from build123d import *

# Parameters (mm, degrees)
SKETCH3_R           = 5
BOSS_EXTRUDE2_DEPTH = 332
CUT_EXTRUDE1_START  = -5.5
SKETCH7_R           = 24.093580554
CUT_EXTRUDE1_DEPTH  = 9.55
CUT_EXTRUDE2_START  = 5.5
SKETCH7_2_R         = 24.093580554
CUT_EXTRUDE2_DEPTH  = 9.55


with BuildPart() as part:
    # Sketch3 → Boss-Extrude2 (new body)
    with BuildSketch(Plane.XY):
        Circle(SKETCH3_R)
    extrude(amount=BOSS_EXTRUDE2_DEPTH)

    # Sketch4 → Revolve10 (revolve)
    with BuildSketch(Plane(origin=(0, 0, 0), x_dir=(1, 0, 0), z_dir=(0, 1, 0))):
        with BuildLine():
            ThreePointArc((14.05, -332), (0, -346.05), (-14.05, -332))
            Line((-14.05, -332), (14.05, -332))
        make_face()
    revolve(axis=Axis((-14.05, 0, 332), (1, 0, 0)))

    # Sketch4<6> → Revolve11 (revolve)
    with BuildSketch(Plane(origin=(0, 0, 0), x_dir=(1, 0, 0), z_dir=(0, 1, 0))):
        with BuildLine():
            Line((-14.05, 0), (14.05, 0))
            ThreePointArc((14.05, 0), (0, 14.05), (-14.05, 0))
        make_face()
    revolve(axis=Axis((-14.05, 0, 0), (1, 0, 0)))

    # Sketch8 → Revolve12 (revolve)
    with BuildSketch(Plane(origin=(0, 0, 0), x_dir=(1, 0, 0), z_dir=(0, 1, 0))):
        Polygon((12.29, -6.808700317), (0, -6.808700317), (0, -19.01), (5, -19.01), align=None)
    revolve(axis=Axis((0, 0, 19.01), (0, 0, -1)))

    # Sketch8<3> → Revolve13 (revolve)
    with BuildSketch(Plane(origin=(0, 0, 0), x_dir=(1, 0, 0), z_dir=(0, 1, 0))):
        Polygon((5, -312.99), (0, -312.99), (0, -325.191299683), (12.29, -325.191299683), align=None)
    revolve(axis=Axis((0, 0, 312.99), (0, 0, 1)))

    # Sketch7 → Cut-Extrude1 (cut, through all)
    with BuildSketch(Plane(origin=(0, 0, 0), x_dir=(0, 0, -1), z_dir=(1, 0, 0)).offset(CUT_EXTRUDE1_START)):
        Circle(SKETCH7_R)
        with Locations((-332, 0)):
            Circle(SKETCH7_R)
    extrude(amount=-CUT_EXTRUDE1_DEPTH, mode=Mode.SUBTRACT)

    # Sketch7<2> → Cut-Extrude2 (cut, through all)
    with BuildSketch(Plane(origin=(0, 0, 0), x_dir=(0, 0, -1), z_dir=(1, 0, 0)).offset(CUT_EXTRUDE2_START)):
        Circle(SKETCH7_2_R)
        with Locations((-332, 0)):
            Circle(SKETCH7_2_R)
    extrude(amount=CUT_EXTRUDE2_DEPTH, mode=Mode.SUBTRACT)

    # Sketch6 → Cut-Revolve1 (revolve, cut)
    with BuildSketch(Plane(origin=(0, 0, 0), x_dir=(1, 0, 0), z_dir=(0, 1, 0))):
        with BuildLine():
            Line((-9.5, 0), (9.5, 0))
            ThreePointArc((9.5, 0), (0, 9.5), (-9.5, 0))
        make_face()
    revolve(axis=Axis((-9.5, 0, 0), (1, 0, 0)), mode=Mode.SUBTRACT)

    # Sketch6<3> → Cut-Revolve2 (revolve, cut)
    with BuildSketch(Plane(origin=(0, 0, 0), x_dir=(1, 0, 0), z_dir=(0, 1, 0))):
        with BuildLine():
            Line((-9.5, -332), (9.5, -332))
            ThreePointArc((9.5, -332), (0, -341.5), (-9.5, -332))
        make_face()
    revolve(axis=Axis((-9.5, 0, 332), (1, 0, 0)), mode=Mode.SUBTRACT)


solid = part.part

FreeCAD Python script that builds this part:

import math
import FreeCAD as App
import Part
import Sketcher

V = App.Vector


def add_polygon(sketch, points):
    """Adds a closed chain of lines whose ends are joined by coincident constraints."""
    first, n = sketch.GeometryCount, len(points)
    for a, b in zip(points, points[1:] + points[:1]):
        sketch.addGeometry(Part.LineSegment(App.Vector(*a, 0), App.Vector(*b, 0)), False)
    for i in range(n):
        sketch.addConstraint(Sketcher.Constraint("Coincident", first + i, 2, first + (i + 1) % n, 1))

doc = App.newDocument("Part")
body = doc.addObject("PartDesign::Body", "Body")

sketch1 = body.newObject("Sketcher::SketchObject", "Sketch")
sketch1.AttachmentSupport = (doc.getObject("XY_Plane"), [""])
sketch1.MapMode = "FlatFace"
sketch1.addGeometry(Part.Circle(V(0, 0, 0), V(0, 0, 1), 5), False)
sketch1.addConstraint([
    Sketcher.Constraint("Coincident", 0, 3, -1, 1),
    Sketcher.Constraint("Diameter", 0, 10.0),
])
pad1 = body.newObject("PartDesign::Pad", "Pad")
pad1.Profile = sketch1
pad1.Length = 332

sketch2 = body.newObject("Sketcher::SketchObject", "Sketch001")
sketch2.AttachmentSupport = (doc.getObject("XZ_Plane"), [""])
sketch2.MapMode = "FlatFace"
sketch2.addGeometry([
    Part.ArcOfCircle(Part.Circle(V(0, 332, 0), V(0, 0, 1), 14), math.radians(0), math.radians(180)),
    Part.LineSegment(V(14, 332, 0), V(-14, 332, 0)),
], False)
sketch2.addGeometry(Part.LineSegment(V(-14, 332, 0), V(14, 332, 0)), True)
sketch2.addConstraint([
    Sketcher.Constraint("Coincident", 0, 1, 1, 1),
    Sketcher.Constraint("Coincident", 1, 2, 0, 2),
    Sketcher.Constraint("Horizontal", 1),
    Sketcher.Constraint("Horizontal", 2),
    Sketcher.Constraint("Coincident", 2, 1, 1, 2),
    Sketcher.Constraint("PointOnObject", 0, 3, -2),
    Sketcher.Constraint("Equal", 1, 2),
    Sketcher.Constraint("Radius", 0, 14.05),
    Sketcher.Constraint("DistanceY", -1, 1, 0, 3, 332.0),
    Sketcher.Constraint("DistanceY", -1, 1, 0, 1, 332.0),
])
revolution = body.newObject("PartDesign::Revolution", "Revolution")
revolution.Profile = sketch2
revolution.ReferenceAxis = (sketch2, ["Axis0"])
revolution.Angle = 360

sketch3 = body.newObject("Sketcher::SketchObject", "Sketch002")
sketch3.AttachmentSupport = (doc.getObject("XZ_Plane"), [""])
sketch3.MapMode = "FlatFace"
sketch3.addGeometry([
    Part.LineSegment(V(-14, 0, 0), V(14, 0, 0)),
    Part.ArcOfCircle(Part.Circle(V(0, 0, 0), V(0, 0, 1), 14), math.radians(180), math.radians(360)),
], False)
sketch3.addConstraint([
    Sketcher.Constraint("Coincident", 0, 1, 1, 1),
    Sketcher.Constraint("Coincident", 1, 2, 0, 2),
    Sketcher.Constraint("Horizontal", 0),
    Sketcher.Constraint("Coincident", 1, 3, -1, 1),
    Sketcher.Constraint("PointOnObject", 0, 1, -1),
    Sketcher.Constraint("Radius", 1, 14.05),
])
revolution2 = body.newObject("PartDesign::Revolution", "Revolution001")
revolution2.Profile = sketch3
revolution2.ReferenceAxis = (sketch3, ["H_Axis"])
revolution2.Angle = 360

sketch4 = body.newObject("Sketcher::SketchObject", "Sketch003")
sketch4.AttachmentSupport = (doc.getObject("XZ_Plane"), [""])
sketch4.MapMode = "FlatFace"
add_polygon(sketch4, [(12, 7), (0, 7), (0, 19), (5, 19)])
sketch4.addConstraint([
    Sketcher.Constraint("Horizontal", 0),
    Sketcher.Constraint("Vertical", 1),
    Sketcher.Constraint("Horizontal", 2),
    Sketcher.Constraint("PointOnObject", 0, 2, -2),
    Sketcher.Constraint("DistanceX", 2, 1, 2, 2, 5.0),
    Sketcher.Constraint("DistanceX", 0, 2, 0, 1, 12.29),
    Sketcher.Constraint("DistanceY", -1, 1, 1, 2, 19.01),
    Sketcher.Constraint("DistanceY", 1, 1, 1, 2, 12.2013),
])
revolution3 = body.newObject("PartDesign::Revolution", "Revolution002")
revolution3.Profile = sketch4
revolution3.ReferenceAxis = (sketch4, ["V_Axis"])
revolution3.Angle = 360

sketch5 = body.newObject("Sketcher::SketchObject", "Sketch004")
sketch5.AttachmentSupport = (doc.getObject("XZ_Plane"), [""])
sketch5.MapMode = "FlatFace"
add_polygon(sketch5, [(5, 313), (0, 313), (0, 325), (12, 325)])
sketch5.addConstraint([
    Sketcher.Constraint("Horizontal", 0),
    Sketcher.Constraint("Vertical", 1),
    Sketcher.Constraint("Horizontal", 2),
    Sketcher.Constraint("PointOnObject", 0, 2, -2),
    Sketcher.Constraint("DistanceX", 0, 2, 0, 1, 5.0),
    Sketcher.Constraint("DistanceX", 2, 1, 2, 2, 12.29),
    Sketcher.Constraint("DistanceY", -1, 1, 0, 2, 312.99),
    Sketcher.Constraint("DistanceY", 1, 1, 1, 2, 12.2013),
])
revolution4 = body.newObject("PartDesign::Revolution", "Revolution003")
revolution4.Profile = sketch5
revolution4.ReferenceAxis = (sketch5, ["V_Axis"])
revolution4.Angle = 360

sketch6 = body.newObject("Sketcher::SketchObject", "Sketch005")
sketch6.AttachmentSupport = (doc.getObject("YZ_Plane"), [""])
sketch6.MapMode = "FlatFace"
sketch6.AttachmentOffset = App.Placement(V(0, 0, -5.5), App.Rotation())
sketch6.addGeometry([
    Part.Circle(V(0, 0, 0), V(0, 0, 1), 24),
    Part.Circle(V(0, 332, 0), V(0, 0, 1), 24),
], False)
sketch6.addConstraint([
    Sketcher.Constraint("Coincident", 0, 3, -1, 1),
    Sketcher.Constraint("Equal", 0, 1),
    Sketcher.Constraint("PointOnObject", 1, 3, -2),
    Sketcher.Constraint("DistanceY", -1, 1, 1, 3, 332.0),
    Sketcher.Constraint("Diameter", 0, 48.187161),
])
pocket1 = body.newObject("PartDesign::Pocket", "Pocket")
pocket1.Profile = sketch6
pocket1.Type = "ThroughAll"

sketch7 = body.newObject("Sketcher::SketchObject", "Sketch006")
sketch7.AttachmentSupport = (doc.getObject("YZ_Plane"), [""])
sketch7.MapMode = "FlatFace"
sketch7.AttachmentOffset = App.Placement(V(0, 0, 5.5), App.Rotation())
sketch7.addGeometry([
    Part.Circle(V(0, 0, 0), V(0, 0, 1), 24),
    Part.Circle(V(0, 332, 0), V(0, 0, 1), 24),
], False)
sketch7.addConstraint([
    Sketcher.Constraint("Coincident", 0, 3, -1, 1),
    Sketcher.Constraint("Equal", 0, 1),
    Sketcher.Constraint("PointOnObject", 1, 3, -2),
    Sketcher.Constraint("DistanceY", -1, 1, 1, 3, 332.0),
    Sketcher.Constraint("Diameter", 0, 48.187161),
])
pocket2 = body.newObject("PartDesign::Pocket", "Pocket001")
pocket2.Profile = sketch7
pocket2.Type = "ThroughAll"
pocket2.Reversed = True

sketch8 = body.newObject("Sketcher::SketchObject", "Sketch007")
sketch8.AttachmentSupport = (doc.getObject("XZ_Plane"), [""])
sketch8.MapMode = "FlatFace"
sketch8.addGeometry([
    Part.LineSegment(V(-10, 0, 0), V(10, 0, 0)),
    Part.ArcOfCircle(Part.Circle(V(0, 0, 0), V(0, 0, 1), 10), math.radians(180), math.radians(360)),
], False)
sketch8.addConstraint([
    Sketcher.Constraint("Coincident", 0, 1, 1, 1),
    Sketcher.Constraint("Coincident", 1, 2, 0, 2),
    Sketcher.Constraint("Horizontal", 0),
    Sketcher.Constraint("Coincident", 1, 3, -1, 1),
    Sketcher.Constraint("PointOnObject", 0, 1, -1),
    Sketcher.Constraint("Radius", 1, 9.5),
])
groove = body.newObject("PartDesign::Groove", "Groove")
groove.Profile = sketch8
groove.ReferenceAxis = (sketch8, ["H_Axis"])
groove.Angle = 360

sketch9 = body.newObject("Sketcher::SketchObject", "Sketch008")
sketch9.AttachmentSupport = (doc.getObject("XZ_Plane"), [""])
sketch9.MapMode = "FlatFace"
sketch9.addGeometry([
    Part.LineSegment(V(10, 332, 0), V(-10, 332, 0)),
    Part.ArcOfCircle(Part.Circle(V(0, 332, 0), V(0, 0, 1), 10), math.radians(0), math.radians(180)),
], False)
sketch9.addGeometry(Part.LineSegment(V(-10, 332, 0), V(10, 332, 0)), True)
sketch9.addConstraint([
    Sketcher.Constraint("Coincident", 0, 1, 1, 1),
    Sketcher.Constraint("Coincident", 1, 2, 0, 2),
    Sketcher.Constraint("Horizontal", 0),
    Sketcher.Constraint("Horizontal", 2),
    Sketcher.Constraint("Coincident", 2, 1, 1, 2),
    Sketcher.Constraint("PointOnObject", 1, 3, -2),
    Sketcher.Constraint("Horizontal", 1, 3, 0, 1),
    Sketcher.Constraint("Equal", 0, 2),
    Sketcher.Constraint("Radius", 1, 9.5),
    Sketcher.Constraint("DistanceY", -1, 1, 1, 3, 332.0),
])
groove2 = body.newObject("PartDesign::Groove", "Groove001")
groove2.Profile = sketch9
groove2.ReferenceAxis = (sketch9, ["Axis0"])
groove2.Angle = 360

doc.recompute()
